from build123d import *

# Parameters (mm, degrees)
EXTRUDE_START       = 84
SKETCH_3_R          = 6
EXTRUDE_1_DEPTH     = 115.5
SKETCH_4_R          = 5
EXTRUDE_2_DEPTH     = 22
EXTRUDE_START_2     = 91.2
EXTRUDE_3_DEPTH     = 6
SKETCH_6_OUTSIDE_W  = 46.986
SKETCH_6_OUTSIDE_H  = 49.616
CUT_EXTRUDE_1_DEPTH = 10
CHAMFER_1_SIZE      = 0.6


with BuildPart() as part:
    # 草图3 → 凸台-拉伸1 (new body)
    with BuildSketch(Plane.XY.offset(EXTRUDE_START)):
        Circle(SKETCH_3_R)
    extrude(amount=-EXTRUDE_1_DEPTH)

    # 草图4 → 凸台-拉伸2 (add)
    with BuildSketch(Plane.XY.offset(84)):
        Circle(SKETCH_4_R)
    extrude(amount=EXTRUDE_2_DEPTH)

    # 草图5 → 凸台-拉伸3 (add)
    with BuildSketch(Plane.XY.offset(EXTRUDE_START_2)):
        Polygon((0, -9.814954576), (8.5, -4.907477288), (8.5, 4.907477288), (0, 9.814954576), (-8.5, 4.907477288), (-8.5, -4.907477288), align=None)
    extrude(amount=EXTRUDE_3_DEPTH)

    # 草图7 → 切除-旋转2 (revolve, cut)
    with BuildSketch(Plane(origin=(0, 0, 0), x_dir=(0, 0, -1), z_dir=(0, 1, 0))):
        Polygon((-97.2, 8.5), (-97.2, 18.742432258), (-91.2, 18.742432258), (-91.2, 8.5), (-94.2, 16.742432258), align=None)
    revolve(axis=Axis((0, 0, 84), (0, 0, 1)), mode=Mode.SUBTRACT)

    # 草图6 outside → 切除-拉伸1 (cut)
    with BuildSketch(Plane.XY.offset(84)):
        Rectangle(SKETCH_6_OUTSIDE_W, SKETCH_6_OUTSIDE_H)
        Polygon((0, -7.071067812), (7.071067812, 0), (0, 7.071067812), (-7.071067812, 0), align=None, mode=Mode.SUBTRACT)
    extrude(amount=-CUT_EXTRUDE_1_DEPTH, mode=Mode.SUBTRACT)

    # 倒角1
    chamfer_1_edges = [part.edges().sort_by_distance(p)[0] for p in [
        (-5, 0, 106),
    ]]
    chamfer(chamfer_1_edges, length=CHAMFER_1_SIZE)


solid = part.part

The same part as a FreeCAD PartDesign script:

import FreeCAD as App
import Part
import Sketcher

V = App.Vector
Q = App.Units.Quantity


def edges_at(feature, points):
    """Names of the edges that pass closest to the given points."""
    edges = feature.Shape.Edges
    near = lambda p: min(range(len(edges)), key=lambda i: edges[i].distToShape(Part.Vertex(*p))[0])
    return sorted({f"Edge{near(p) + 1}" for p in points})

doc = App.newDocument("Part")
body = doc.addObject("PartDesign::Body", "Body")

# Sketch on XY plane
sketch1 = body.newObject("Sketcher::SketchObject", "Sketch")
sketch1.AttachmentSupport = (doc.getObject("XY_Plane"), [""])
sketch1.MapMode = "FlatFace"
sketch1.AttachmentOffset = App.Placement(V(0, 0, 84), App.Rotation())
sketch1.addGeometry(Part.Circle(V(0, 0, 0), V(0, 0, 1), 6), False)
sketch1.addConstraint([
    Sketcher.Constraint("Coincident", 0, 3, -1, 1),
    Sketcher.Constraint("Diameter", 0, 12.0),
])
pad1 = body.newObject("PartDesign::Pad", "Pad")
pad1.Profile = sketch1
pad1.Length = 115.5
pad1.Reversed = True

# Sketch on XY plane
sketch2 = body.newObject("Sketcher::SketchObject", "Sketch001")
sketch2.AttachmentSupport = (doc.getObject("XY_Plane"), [""])
sketch2.MapMode = "FlatFace"
sketch2.AttachmentOffset = App.Placement(V(0, 0, 84), App.Rotation())
sketch2.addGeometry(Part.Circle(V(0, 0, 0), V(0, 0, 1), 5), False)
sketch2.addConstraint([
    Sketcher.Constraint("Coincident", 0, 3, -1, 1),
    Sketcher.Constraint("Diameter", 0, 10.0),
])
pad2 = body.newObject("PartDesign::Pad", "Pad001")
pad2.Profile = sketch2
pad2.Length = 22

# Sketch on XY plane
sketch3 = body.newObject("Sketcher::SketchObject", "Sketch002")
sketch3.AttachmentSupport = (doc.getObject("XY_Plane"), [""])
sketch3.MapMode = "FlatFace"
sketch3.AttachmentOffset = App.Placement(V(0, 0, 91.2), App.Rotation())
sketch3.addGeometry([
    Part.LineSegment(V(0, -10, 0), V(8, -5, 0)),  # 0
    Part.LineSegment(V(8, -5, 0), V(8, 5, 0)),  # 1
    Part.LineSegment(V(8, 5, 0), V(0, 10, 0)),  # 2
    Part.LineSegment(V(0, 10, 0), V(-8, 5, 0)),  # 3
    Part.LineSegment(V(-8, 5, 0), V(-8, -5, 0)),  # 4
    Part.LineSegment(V(-8, -5, 0), V(0, -10, 0)),  # 5
], False)
sketch3.addConstraint([
    Sketcher.Constraint("Coincident", 0, 2, 1, 1),
    Sketcher.Constraint("Coincident", 1, 2, 2, 1),
    Sketcher.Constraint("Coincident", 2, 2, 3, 1),
    Sketcher.Constraint("Coincident", 3, 2, 4, 1),
    Sketcher.Constraint("Coincident", 4, 2, 5, 1),
    Sketcher.Constraint("Coincident", 5, 2, 0, 1),
    Sketcher.Constraint("Vertical", 1),
    Sketcher.Constraint("Vertical", 4),
    Sketcher.Constraint("Symmetric", 0, 2, 3, 2, -1, 1),
    Sketcher.Constraint("Symmetric", 2, 2, 5, 2, -1, 1),
    Sketcher.Constraint("PointOnObject", 2, 2, -2),
    Sketcher.Constraint("Parallel", 2, 5),
    Sketcher.Constraint("Horizontal", 1, 2, 3, 2),
    Sketcher.Constraint("Angle", 0, Q("30 deg")),
    Sketcher.Constraint("DistanceX", 3, 2, 1, 2, 17.0),
    Sketcher.Constraint("DistanceY", 1, 1, 1, 2, 9.814955),
])
pad3 = body.newObject("PartDesign::Pad", "Pad002")
pad3.Profile = sketch3
pad3.Length = 6

# Sketch on XZ plane
sketch4 = body.newObject("Sketcher::SketchObject", "Sketch003")
sketch4.AttachmentSupport = (doc.getObject("XZ_Plane"), [""])
sketch4.MapMode = "FlatFace"
sketch4.addGeometry([
    Part.LineSegment(V(-19, 97, 0), V(-8, 97, 0)),  # 0
    Part.LineSegment(V(-8, 97, 0), V(-17, 94, 0)),  # 1
    Part.LineSegment(V(-17, 94, 0), V(-8, 91, 0)),  # 2
    Part.LineSegment(V(-8, 91, 0), V(-19, 91, 0)),  # 3
    Part.LineSegment(V(-19, 91, 0), V(-19, 97, 0)),  # 4
], False)
sketch4.addConstraint([
    Sketcher.Constraint("Coincident", 0, 2, 1, 1),
    Sketcher.Constraint("Coincident", 1, 2, 2, 1),
    Sketcher.Constraint("Coincident", 2, 2, 3, 1),
    Sketcher.Constraint("Coincident", 3, 2, 4, 1),
    Sketcher.Constraint("Coincident", 4, 2, 0, 1),
    Sketcher.Constraint("Horizontal", 0),
    Sketcher.Constraint("Horizontal", 3),
    Sketcher.Constraint("Vertical", 4),
    Sketcher.Constraint("Vertical", 0, 2, 2, 2),
    Sketcher.Constraint("Equal", 1, 2),
    Sketcher.Constraint("DistanceY", 4, 1, 4, 2, 6.0),
    Sketcher.Constraint("Angle", 1, Q("-160 deg")),
    Sketcher.Constraint("DistanceX", 3, 2, 1, 2, 2.0),
    Sketcher.Constraint("DistanceX", 0, 2, -1, 1, 8.5),
    Sketcher.Constraint("DistanceY", -1, 1, 0, 2, 97.2),
])
groove = body.newObject("PartDesign::Groove", "Groove")
groove.Profile = sketch4
groove.ReferenceAxis = (sketch4, ["V_Axis"])
groove.Angle = 360

# Sketch on XY plane
sketch5 = body.newObject("Sketcher::SketchObject", "Sketch004")
sketch5.AttachmentSupport = (doc.getObject("XY_Plane"), [""])
sketch5.MapMode = "FlatFace"
sketch5.AttachmentOffset = App.Placement(V(0, 0, 84), App.Rotation())
sketch5.addGeometry([
    Part.LineSegment(V(-23, 25, 0), V(-23, -25, 0)),  # 0
    Part.LineSegment(V(-23, -25, 0), V(23, -25, 0)),  # 1
    Part.LineSegment(V(23, -25, 0), V(23, 25, 0)),  # 2
    Part.LineSegment(V(23, 25, 0), V(-23, 25, 0)),  # 3
    Part.LineSegment(V(7, 0, 0), V(0, -7, 0)),  # 4
    Part.LineSegment(V(0, -7, 0), V(-7, 0, 0)),  # 5
    Part.LineSegment(V(-7, 0, 0), V(0, 7, 0)),  # 6
    Part.LineSegment(V(0, 7, 0), V(7, 0, 0)),  # 7
], False)
sketch5.addConstraint([
    Sketcher.Constraint("Coincident", 0, 2, 1, 1),
    Sketcher.Constraint("Coincident", 1, 2, 2, 1),
    Sketcher.Constraint("Coincident", 2, 2, 3, 1),
    Sketcher.Constraint("Coincident", 3, 2, 0, 1),
    Sketcher.Constraint("Coincident", 4, 2, 5, 1),
    Sketcher.Constraint("Coincident", 5, 2, 6, 1),
    Sketcher.Constraint("Coincident", 6, 2, 7, 1),
    Sketcher.Constraint("Coincident", 7, 2, 4, 1),
    Sketcher.Constraint("Vertical", 0),
    Sketcher.Constraint("Horizontal", 1),
    Sketcher.Constraint("Vertical", 2),
    Sketcher.Constraint("Horizontal", 3),
    Sketcher.Constraint("Symmetric", 0, 2, 2, 2, -1, 1),
    Sketcher.Constraint("Symmetric", 4, 2, 6, 2, -1, 1),
    Sketcher.Constraint("Symmetric", 5, 2, 7, 2, -1, 1),
    Sketcher.Constraint("PointOnObject", 4, 2, -2),
    Sketcher.Constraint("PointOnObject", 5, 2, -1),
    Sketcher.Constraint("Perpendicular", 4, 5),
    Sketcher.Constraint("Distance", 4, 10.0),
    Sketcher.Constraint("DistanceX", 1, 1, 1, 2, 46.986),
    Sketcher.Constraint("DistanceY", 0, 2, 0, 1, 49.616),
])
pocket1 = body.newObject("PartDesign::Pocket", "Pocket")
pocket1.Profile = sketch5
pocket1.Length = 10
doc.recompute()

chamfer = body.newObject("PartDesign::Chamfer", "Chamfer")
chamfer.Base = (pocket1, edges_at(pocket1, [(-5, 0, 106)]))
chamfer.Size = 0.6

doc.recompute()
